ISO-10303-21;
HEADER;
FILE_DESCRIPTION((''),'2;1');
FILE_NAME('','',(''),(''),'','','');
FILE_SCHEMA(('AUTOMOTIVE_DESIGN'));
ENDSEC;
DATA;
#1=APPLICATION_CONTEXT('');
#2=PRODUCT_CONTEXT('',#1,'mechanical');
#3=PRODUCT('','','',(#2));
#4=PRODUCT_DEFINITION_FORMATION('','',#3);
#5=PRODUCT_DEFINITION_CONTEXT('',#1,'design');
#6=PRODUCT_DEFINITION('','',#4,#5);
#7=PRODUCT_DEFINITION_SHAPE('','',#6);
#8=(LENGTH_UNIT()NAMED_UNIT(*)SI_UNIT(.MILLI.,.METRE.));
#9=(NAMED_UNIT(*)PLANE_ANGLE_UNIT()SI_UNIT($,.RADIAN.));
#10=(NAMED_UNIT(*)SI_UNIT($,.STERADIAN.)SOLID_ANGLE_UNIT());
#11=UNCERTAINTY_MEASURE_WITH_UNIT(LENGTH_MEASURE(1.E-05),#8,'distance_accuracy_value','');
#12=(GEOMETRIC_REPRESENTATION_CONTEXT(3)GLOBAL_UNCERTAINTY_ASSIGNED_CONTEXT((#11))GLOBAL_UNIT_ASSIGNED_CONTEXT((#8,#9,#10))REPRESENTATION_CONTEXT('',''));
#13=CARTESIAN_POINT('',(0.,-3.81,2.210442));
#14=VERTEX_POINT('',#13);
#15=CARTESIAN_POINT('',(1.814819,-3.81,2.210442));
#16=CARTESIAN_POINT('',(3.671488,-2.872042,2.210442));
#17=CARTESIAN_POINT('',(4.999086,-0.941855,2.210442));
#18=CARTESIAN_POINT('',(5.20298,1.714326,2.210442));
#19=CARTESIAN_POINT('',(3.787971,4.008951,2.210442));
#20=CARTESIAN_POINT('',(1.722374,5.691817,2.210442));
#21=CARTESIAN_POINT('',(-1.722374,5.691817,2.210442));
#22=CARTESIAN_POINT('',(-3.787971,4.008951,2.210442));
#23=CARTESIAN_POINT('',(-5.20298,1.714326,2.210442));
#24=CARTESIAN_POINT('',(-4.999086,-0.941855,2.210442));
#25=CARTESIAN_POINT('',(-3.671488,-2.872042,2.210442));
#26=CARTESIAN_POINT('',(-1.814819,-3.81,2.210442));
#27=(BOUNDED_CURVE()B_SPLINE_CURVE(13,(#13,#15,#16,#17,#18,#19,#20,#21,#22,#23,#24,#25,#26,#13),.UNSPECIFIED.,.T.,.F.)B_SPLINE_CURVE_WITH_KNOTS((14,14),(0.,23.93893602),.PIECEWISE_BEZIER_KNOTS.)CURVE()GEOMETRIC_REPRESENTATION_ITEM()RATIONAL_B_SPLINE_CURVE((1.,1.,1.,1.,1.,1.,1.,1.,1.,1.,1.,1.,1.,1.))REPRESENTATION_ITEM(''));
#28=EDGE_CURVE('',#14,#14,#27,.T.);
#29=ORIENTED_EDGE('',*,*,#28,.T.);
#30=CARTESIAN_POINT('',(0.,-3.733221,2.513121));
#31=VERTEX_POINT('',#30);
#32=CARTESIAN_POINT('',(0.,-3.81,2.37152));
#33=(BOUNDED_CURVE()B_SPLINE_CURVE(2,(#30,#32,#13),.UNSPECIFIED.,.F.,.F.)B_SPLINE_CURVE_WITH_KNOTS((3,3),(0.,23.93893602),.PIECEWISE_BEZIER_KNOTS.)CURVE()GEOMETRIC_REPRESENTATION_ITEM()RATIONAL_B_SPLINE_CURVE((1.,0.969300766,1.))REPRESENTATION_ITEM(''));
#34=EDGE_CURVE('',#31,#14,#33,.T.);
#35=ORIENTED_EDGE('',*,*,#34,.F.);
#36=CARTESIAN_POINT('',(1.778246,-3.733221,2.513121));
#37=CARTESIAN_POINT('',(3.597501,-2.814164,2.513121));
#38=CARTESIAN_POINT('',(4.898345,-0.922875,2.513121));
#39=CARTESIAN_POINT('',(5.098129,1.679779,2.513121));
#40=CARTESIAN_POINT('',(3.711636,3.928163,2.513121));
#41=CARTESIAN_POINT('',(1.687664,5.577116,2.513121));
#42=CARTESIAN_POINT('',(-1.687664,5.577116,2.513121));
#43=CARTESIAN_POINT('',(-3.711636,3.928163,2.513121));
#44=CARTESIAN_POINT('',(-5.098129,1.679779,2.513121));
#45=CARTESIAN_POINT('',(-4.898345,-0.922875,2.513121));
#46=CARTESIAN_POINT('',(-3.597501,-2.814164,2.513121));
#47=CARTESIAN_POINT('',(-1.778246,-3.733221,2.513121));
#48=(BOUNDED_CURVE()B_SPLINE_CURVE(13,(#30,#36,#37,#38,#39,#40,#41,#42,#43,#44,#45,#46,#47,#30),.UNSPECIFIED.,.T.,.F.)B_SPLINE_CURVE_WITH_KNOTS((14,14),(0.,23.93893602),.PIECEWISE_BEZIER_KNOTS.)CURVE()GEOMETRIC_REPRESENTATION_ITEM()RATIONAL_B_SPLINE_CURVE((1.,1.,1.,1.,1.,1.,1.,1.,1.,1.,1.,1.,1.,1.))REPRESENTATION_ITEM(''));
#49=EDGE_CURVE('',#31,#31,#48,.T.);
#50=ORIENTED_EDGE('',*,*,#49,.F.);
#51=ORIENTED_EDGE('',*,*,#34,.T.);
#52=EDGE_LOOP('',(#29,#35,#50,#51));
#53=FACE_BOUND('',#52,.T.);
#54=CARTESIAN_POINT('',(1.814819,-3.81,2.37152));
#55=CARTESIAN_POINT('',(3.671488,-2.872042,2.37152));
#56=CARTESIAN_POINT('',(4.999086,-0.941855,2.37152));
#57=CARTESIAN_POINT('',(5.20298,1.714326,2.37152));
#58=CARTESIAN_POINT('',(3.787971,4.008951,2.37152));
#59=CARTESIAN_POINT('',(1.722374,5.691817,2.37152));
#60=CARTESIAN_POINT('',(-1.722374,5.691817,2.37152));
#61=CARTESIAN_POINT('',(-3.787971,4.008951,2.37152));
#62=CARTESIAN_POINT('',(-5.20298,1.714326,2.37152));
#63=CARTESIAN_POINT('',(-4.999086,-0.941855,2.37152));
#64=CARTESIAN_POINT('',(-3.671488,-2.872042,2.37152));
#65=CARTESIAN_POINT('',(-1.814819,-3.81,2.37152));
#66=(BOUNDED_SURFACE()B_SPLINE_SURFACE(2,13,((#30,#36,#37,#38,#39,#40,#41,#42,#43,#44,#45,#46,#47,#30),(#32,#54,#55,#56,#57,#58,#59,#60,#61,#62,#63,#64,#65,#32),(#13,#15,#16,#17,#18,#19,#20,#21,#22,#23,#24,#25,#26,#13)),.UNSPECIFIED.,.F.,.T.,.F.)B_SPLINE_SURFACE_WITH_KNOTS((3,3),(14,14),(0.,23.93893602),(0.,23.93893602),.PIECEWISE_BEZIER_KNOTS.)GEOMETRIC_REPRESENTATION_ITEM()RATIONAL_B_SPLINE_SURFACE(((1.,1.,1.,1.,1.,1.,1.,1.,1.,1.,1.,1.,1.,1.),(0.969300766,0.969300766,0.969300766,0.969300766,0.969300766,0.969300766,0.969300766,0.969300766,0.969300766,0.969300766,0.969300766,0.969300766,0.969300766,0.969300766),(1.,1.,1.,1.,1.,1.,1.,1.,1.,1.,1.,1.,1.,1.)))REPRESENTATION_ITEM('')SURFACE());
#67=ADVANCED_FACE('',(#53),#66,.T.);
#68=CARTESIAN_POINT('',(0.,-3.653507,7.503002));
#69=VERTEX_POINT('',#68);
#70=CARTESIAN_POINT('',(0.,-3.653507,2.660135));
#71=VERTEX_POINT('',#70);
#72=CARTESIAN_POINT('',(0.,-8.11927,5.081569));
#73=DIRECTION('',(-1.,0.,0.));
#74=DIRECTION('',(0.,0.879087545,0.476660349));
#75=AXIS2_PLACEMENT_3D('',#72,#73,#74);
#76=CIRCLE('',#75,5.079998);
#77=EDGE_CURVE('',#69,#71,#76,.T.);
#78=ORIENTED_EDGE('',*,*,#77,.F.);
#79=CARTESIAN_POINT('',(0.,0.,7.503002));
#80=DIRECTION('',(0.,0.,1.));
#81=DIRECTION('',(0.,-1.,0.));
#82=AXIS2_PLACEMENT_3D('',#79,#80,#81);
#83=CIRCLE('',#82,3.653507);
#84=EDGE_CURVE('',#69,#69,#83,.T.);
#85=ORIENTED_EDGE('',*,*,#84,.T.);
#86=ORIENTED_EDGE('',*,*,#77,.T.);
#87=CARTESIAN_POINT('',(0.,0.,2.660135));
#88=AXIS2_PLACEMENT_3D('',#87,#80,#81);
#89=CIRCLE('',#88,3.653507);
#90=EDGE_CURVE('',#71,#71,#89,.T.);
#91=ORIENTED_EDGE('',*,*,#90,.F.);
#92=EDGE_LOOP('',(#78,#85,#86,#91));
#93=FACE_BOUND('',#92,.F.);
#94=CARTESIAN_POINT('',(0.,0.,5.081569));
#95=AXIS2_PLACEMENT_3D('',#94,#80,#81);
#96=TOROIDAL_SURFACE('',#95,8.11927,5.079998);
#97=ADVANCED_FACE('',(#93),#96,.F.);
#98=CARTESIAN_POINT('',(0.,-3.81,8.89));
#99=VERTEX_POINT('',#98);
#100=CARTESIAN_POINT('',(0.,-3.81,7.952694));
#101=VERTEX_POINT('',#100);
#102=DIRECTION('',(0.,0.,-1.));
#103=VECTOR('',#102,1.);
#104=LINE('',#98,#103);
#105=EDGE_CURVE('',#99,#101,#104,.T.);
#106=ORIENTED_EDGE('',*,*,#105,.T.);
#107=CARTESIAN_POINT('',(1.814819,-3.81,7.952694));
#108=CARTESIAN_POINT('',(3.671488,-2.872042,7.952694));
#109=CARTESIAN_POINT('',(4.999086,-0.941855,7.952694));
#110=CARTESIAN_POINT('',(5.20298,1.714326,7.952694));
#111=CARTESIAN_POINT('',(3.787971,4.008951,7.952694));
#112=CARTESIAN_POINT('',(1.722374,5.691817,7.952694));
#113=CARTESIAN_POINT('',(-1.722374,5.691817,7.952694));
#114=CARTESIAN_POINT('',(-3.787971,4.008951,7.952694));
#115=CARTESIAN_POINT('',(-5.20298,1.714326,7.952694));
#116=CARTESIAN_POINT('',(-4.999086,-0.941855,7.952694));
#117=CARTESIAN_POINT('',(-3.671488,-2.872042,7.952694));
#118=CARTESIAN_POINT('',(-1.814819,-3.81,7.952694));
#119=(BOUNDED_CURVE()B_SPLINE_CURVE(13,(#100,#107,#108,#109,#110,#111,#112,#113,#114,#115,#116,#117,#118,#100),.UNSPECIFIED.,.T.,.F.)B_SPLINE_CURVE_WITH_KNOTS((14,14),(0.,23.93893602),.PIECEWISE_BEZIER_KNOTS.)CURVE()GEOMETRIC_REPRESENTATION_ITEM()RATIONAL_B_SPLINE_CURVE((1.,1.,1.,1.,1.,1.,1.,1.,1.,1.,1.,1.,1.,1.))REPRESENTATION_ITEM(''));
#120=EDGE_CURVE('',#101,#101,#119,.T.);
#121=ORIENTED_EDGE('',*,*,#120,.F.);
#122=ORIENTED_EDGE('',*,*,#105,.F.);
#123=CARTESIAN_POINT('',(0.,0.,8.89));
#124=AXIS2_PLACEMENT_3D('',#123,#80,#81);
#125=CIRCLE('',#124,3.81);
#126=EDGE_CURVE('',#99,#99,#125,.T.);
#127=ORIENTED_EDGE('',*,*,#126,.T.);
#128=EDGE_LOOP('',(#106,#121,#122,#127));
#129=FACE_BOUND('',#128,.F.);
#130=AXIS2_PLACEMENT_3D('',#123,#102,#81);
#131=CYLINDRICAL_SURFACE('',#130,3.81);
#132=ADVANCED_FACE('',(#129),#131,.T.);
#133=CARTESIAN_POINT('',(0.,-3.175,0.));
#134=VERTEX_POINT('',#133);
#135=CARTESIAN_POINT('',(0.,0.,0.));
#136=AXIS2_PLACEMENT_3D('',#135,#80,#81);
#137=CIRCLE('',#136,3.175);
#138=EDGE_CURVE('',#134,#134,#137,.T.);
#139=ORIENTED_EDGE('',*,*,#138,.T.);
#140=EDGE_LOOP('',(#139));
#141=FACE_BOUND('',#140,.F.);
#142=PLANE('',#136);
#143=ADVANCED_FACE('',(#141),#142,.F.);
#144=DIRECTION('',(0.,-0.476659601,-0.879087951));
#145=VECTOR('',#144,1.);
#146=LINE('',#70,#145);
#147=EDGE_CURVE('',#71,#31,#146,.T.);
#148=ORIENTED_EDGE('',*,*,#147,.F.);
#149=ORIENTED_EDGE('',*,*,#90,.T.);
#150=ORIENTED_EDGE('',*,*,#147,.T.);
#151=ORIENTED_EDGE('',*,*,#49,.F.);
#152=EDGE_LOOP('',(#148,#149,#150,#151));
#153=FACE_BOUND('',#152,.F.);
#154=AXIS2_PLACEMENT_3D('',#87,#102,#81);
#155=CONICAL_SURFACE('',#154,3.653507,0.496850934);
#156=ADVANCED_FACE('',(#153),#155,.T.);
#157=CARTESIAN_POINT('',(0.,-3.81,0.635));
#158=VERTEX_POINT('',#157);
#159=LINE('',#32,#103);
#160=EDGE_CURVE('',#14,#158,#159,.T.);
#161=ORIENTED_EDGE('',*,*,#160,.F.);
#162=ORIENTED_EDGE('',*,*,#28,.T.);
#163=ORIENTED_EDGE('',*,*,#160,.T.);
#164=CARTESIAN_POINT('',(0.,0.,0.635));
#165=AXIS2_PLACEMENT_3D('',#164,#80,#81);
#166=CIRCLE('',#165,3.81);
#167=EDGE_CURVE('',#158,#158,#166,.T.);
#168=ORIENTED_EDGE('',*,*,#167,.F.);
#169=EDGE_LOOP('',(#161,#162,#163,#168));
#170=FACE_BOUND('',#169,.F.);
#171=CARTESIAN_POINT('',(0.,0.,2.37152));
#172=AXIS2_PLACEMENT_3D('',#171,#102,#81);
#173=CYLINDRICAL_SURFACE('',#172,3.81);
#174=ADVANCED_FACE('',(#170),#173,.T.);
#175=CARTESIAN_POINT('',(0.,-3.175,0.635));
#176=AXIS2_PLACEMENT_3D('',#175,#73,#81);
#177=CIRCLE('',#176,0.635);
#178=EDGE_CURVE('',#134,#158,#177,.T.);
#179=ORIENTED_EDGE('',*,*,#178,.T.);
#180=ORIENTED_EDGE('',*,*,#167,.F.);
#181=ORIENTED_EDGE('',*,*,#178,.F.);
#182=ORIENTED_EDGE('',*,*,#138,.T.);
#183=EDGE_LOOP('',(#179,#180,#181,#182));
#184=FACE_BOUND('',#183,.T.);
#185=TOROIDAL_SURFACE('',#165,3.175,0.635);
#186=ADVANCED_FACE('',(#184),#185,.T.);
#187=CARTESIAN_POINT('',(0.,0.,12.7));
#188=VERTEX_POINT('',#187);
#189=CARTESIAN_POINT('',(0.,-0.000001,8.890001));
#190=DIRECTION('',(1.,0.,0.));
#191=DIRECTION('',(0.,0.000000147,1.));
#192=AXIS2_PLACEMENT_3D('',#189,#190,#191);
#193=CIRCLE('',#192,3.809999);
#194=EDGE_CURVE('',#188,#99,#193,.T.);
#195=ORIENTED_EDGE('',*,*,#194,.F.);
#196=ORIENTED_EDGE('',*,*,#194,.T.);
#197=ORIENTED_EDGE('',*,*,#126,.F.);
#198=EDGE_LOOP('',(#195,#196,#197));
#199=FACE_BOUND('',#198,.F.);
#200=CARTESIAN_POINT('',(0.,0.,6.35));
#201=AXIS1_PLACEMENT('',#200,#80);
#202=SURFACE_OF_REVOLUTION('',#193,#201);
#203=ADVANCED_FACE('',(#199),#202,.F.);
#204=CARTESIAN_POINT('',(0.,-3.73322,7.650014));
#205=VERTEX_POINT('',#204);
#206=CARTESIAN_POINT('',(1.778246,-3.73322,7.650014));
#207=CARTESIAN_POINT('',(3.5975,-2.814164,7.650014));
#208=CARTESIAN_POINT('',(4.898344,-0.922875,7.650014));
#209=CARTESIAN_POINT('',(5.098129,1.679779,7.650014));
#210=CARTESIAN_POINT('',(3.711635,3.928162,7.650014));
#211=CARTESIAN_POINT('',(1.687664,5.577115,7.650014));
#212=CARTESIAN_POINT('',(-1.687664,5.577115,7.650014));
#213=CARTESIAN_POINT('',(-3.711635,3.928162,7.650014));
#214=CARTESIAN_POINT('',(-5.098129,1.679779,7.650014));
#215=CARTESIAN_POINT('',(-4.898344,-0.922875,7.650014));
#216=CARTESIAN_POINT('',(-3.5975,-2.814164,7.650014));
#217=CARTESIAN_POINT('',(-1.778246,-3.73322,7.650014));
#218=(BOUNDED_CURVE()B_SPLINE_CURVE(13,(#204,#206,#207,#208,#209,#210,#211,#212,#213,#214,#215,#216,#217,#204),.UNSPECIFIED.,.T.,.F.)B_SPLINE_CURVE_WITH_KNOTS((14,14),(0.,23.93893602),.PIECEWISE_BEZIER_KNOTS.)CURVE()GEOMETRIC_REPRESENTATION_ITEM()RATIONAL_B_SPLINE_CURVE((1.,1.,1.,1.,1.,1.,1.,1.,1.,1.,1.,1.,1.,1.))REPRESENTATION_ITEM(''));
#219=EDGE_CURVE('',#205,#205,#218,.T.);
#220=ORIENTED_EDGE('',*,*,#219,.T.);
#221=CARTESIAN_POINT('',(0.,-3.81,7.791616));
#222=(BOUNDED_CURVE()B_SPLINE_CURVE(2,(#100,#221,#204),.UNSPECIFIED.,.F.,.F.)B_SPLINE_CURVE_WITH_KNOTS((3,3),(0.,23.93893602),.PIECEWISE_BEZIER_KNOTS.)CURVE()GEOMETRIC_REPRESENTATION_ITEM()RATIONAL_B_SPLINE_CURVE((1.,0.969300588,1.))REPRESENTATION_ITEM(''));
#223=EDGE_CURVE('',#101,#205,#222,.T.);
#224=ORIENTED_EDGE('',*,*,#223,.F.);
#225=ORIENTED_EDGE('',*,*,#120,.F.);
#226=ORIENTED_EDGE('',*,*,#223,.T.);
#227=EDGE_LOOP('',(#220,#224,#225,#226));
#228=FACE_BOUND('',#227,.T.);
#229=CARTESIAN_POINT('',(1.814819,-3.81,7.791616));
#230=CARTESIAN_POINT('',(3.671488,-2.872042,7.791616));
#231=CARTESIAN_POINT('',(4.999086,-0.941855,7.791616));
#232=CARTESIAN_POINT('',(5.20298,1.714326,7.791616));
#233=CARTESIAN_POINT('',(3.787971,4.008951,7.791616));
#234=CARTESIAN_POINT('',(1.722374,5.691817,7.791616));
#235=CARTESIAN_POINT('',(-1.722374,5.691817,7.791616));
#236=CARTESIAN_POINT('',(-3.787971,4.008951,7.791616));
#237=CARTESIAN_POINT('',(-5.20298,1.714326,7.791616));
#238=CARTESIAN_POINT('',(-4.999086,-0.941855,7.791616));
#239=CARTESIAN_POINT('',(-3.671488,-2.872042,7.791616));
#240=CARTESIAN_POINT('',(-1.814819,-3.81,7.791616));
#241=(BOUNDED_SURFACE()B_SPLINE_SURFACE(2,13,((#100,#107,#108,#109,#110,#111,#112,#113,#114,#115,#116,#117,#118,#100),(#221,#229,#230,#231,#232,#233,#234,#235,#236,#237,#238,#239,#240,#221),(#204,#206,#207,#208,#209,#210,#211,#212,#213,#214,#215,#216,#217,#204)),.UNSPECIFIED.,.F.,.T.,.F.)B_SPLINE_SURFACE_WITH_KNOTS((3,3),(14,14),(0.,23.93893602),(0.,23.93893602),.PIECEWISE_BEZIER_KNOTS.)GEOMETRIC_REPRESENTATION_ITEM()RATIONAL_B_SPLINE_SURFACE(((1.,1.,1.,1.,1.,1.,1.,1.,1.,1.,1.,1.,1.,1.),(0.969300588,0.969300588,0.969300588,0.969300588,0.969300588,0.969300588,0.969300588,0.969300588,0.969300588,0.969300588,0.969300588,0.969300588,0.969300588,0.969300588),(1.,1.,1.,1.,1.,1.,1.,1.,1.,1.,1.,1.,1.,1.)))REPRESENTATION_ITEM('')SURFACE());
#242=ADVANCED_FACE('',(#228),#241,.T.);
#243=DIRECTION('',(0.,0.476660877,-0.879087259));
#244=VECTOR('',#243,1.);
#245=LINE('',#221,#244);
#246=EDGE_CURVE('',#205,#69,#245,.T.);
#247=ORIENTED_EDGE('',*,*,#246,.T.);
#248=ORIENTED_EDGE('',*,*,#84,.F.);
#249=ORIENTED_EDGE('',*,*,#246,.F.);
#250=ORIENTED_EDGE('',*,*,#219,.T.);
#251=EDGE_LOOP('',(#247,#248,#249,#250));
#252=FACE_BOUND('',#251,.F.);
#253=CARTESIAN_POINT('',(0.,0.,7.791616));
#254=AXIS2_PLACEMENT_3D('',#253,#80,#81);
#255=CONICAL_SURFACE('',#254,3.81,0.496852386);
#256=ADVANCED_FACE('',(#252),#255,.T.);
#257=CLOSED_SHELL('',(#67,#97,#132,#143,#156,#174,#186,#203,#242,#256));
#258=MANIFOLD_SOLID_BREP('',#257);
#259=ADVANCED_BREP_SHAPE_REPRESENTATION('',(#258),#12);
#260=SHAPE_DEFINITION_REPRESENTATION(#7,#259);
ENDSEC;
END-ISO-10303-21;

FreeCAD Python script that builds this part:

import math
import FreeCAD as App
import Part
import Sketcher
from FreeCAD import Vector
Q = App.Units.Quantity


def edges_at(feature, points):
    """Names of the edges that pass closest to the given points."""
    edges = feature.Shape.Edges
    near = lambda p: min(range(len(edges)), key=lambda i: edges[i].distToShape(Part.Vertex(*p))[0])
    return sorted({f"Edge{near(p) + 1}" for p in points})

doc = App.newDocument("Part")
body = doc.addObject("PartDesign::Body", "Body")

# Sketch on YZ plane
sketch1 = body.newObject("Sketcher::SketchObject", "Sketch")
sketch1.AttachmentSupport = (doc.getObject("YZ_Plane"), [""])
sketch1.MapMode = "FlatFace"
sketch1.addGeometry(Part.LineSegment(Vector(-3.81, 0, 0), Vector(0, 0, 0)), False)
sketch1.addGeometry(Part.LineSegment(Vector(0, 0, 0), Vector(0, 12.7, 0)), False)
sketch1.addGeometry(Part.ArcOfCircle(Part.Circle(Vector(0, 8.89, 0), Vector(0, 0, 1), 3.81), math.radians(90), math.radians(180)), False)
sketch1.addGeometry(Part.LineSegment(Vector(-3.81, 8.89, 0), Vector(-3.81, 7.79, 0)), False)
sketch1.addGeometry(Part.LineSegment(Vector(-3.81, 7.79, 0), Vector(-3.65, 7.5, 0)), False)
sketch1.addGeometry(Part.ArcOfCircle(Part.Circle(Vector(-8.12, 5.08, 0), Vector(0, 0, 1), 5.08), math.radians(-28), math.radians(28)), False)
sketch1.addGeometry(Part.LineSegment(Vector(-3.65, 2.66, 0), Vector(-3.81, 2.37, 0)), False)
sketch1.addGeometry(Part.LineSegment(Vector(-3.81, 2.37, 0), Vector(-3.81, 0, 0)), False)
sketch1.addConstraint(Sketcher.Constraint("Coincident", 0, 2, 1, 1))
sketch1.addConstraint(Sketcher.Constraint("Coincident", 1, 2, 2, 1))
sketch1.addConstraint(Sketcher.Constraint("Tangent", 2, 2, 3, 1))
sketch1.addConstraint(Sketcher.Constraint("Coincident", 3, 2, 4, 1))
sketch1.addConstraint(Sketcher.Constraint("Tangent", 4, 2, 5, 2))
sketch1.addConstraint(Sketcher.Constraint("Tangent", 5, 1, 6, 1))
sketch1.addConstraint(Sketcher.Constraint("Coincident", 6, 2, 7, 1))
sketch1.addConstraint(Sketcher.Constraint("Coincident", 7, 2, 0, 1))
sketch1.addConstraint(Sketcher.Constraint("Horizontal", 0))
sketch1.addConstraint(Sketcher.Constraint("Vertical", 1))
sketch1.addConstraint(Sketcher.Constraint("Vertical", 3))
sketch1.addConstraint(Sketcher.Constraint("Vertical", 7))
sketch1.addConstraint(Sketcher.Constraint("Coincident", 0, 2, -1, 1))
sketch1.addConstraint(Sketcher.Constraint("PointOnObject", 2, 3, -2))
sketch1.addConstraint(Sketcher.Constraint("Vertical", 4, 2, 5, 1))
sketch1.addConstraint(Sketcher.Constraint("Vertical", 3, 2, 6, 2))
sketch1.addConstraint(Sketcher.Constraint("Radius", 5, Q("0.1999999 in")))
sketch1.addConstraint(Sketcher.Constraint("Radius", 2, Q("0.15 in")))
sketch1.addConstraint(Sketcher.Constraint("DistanceY", 1, 1, 1, 2, Q("0.5 in")))
sketch1.addConstraint(Sketcher.Constraint("DistanceY", 7, 2, 7, 1, 2.37152))
sketch1.addConstraint(Sketcher.Constraint("DistanceY", 4, 2, 2, 2, 1.386998))
sketch1.addConstraint(Sketcher.Constraint("Distance", 4, 0.328311))
revolution = body.newObject("PartDesign::Revolution", "Revolution")
revolution.Profile = sketch1
revolution.ReferenceAxis = (sketch1, ["V_Axis"])
revolution.Angle = 360
doc.recompute()

fillet = body.newObject("PartDesign::Fillet", "Fillet")
fillet.Base = (revolution, edges_at(revolution, [(0, 3.81, 0), (0, 3.81, 2.372), (0, 3.81, 7.792)]))
fillet.Radius = Q("0.025 in")

doc.recompute()
